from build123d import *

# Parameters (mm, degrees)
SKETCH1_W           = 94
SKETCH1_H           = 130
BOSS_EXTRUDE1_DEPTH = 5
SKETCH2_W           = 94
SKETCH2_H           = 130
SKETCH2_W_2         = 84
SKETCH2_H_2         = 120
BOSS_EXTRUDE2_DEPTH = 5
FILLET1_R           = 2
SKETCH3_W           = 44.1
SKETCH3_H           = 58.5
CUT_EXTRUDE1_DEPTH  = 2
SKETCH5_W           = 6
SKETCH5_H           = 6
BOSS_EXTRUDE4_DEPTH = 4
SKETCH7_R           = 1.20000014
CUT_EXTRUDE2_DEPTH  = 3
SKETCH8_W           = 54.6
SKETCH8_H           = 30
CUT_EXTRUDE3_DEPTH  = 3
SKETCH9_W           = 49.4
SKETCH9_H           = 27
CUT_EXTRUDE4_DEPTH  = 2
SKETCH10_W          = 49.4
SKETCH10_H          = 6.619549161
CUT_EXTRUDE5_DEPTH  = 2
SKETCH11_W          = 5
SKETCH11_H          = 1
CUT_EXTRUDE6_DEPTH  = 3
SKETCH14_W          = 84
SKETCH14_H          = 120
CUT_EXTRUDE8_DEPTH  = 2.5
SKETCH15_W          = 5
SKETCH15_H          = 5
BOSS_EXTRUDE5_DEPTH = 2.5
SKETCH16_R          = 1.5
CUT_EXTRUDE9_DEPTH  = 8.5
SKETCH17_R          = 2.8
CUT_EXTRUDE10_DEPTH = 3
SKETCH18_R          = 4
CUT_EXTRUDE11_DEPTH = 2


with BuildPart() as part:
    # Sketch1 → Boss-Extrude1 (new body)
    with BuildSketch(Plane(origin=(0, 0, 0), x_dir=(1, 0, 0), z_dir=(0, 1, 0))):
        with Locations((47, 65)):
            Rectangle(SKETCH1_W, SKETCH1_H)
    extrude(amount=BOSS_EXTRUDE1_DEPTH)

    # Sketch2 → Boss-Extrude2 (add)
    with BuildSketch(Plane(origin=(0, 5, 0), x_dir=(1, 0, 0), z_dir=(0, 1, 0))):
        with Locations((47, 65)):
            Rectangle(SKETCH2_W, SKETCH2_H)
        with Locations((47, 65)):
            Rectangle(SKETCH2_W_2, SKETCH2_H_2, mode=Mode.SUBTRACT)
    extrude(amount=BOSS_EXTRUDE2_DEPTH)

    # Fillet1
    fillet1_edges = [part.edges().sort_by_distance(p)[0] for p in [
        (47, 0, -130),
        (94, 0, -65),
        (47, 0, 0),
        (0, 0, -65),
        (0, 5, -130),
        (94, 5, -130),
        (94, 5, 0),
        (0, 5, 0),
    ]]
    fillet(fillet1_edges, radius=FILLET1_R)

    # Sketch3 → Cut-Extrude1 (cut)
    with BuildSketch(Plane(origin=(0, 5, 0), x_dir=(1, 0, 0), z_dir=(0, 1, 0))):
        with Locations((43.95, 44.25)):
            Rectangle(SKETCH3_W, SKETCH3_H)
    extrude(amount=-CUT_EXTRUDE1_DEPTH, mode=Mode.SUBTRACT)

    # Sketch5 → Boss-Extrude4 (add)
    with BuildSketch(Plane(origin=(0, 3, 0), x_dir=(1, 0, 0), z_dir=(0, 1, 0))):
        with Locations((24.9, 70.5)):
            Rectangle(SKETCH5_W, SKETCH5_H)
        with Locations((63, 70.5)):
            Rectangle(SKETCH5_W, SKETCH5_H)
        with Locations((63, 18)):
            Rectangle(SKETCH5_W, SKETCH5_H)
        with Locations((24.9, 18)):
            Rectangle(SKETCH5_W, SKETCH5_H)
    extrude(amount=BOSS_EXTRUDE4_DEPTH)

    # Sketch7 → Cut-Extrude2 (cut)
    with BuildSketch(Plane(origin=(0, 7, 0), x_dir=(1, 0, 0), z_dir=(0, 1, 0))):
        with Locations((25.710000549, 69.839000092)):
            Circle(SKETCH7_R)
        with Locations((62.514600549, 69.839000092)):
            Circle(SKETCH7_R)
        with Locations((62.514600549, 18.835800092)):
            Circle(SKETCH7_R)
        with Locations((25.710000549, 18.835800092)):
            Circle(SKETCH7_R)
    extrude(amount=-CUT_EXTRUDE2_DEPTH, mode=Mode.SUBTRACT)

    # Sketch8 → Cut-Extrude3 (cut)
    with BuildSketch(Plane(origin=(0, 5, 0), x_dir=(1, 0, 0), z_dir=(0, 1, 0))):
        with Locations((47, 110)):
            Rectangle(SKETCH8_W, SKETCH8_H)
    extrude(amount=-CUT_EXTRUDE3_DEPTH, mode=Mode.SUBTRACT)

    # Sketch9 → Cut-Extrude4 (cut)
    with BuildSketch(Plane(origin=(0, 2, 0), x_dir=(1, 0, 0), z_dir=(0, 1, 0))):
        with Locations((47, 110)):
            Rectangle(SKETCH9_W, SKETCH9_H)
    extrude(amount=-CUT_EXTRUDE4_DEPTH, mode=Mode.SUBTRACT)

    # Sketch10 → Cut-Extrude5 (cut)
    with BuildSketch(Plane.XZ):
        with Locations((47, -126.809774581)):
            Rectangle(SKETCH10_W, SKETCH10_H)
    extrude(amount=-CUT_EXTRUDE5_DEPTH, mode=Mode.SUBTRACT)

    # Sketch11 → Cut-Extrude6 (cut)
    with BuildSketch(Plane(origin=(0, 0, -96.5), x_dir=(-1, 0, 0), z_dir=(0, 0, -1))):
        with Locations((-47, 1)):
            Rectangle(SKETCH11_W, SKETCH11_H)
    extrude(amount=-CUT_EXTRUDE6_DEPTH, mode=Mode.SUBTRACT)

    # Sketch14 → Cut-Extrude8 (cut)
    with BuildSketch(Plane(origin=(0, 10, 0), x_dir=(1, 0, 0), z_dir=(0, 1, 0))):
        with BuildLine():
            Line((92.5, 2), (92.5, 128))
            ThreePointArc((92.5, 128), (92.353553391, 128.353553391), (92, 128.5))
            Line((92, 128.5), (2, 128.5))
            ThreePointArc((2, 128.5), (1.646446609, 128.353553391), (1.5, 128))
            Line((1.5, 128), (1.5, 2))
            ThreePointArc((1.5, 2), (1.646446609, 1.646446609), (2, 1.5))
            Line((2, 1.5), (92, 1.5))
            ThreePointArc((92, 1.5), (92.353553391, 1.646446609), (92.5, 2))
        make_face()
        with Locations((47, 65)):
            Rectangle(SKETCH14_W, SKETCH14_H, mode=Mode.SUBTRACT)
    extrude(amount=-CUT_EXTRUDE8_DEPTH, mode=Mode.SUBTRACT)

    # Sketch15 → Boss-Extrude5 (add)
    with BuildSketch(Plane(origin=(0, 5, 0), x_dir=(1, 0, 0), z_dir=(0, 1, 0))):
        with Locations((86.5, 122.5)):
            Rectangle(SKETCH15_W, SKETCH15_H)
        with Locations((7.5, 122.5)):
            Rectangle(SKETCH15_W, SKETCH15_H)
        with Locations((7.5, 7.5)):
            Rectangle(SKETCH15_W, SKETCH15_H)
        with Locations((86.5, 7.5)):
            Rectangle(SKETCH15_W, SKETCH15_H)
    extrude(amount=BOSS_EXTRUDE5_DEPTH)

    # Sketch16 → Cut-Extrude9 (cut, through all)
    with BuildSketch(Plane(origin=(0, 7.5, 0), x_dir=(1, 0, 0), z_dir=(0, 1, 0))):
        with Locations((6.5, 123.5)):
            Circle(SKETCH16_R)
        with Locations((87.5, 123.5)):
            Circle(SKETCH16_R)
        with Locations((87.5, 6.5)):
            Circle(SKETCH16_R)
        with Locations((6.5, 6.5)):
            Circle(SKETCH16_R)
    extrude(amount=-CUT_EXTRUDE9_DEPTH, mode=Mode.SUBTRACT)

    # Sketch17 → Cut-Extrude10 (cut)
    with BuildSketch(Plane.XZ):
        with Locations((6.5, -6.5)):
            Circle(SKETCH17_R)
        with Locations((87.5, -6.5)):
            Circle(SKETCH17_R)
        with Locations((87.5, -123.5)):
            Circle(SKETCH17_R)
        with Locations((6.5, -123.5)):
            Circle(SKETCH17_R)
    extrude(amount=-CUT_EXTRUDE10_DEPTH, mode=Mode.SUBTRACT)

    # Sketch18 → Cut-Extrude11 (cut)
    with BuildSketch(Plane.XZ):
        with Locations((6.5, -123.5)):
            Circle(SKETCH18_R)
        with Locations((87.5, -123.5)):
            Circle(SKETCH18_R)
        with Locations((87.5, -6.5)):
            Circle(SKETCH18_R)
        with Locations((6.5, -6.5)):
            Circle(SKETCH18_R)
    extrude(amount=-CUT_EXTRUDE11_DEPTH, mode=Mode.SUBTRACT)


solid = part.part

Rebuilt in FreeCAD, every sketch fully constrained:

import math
import FreeCAD as App
import Part
import Sketcher


def edges_at(feature, points):
    """Names of the edges that pass closest to the given points."""
    edges = feature.Shape.Edges
    near = lambda p: min(range(len(edges)), key=lambda i: edges[i].distToShape(Part.Vertex(*p))[0])
    return sorted({f"Edge{near(p) + 1}" for p in points})

doc = App.newDocument("Part")
body = doc.addObject("PartDesign::Body", "Body")

# Sketch on XZ plane
sketch1 = body.newObject("Sketcher::SketchObject", "Sketch")
sketch1.AttachmentSupport = (doc.getObject("XZ_Plane"), [""])
sketch1.MapMode = "FlatFace"
sketch1.addGeometry(Part.LineSegment(App.Vector(0, -130, 0), App.Vector(0, 0, 0)), False)
sketch1.addGeometry(Part.LineSegment(App.Vector(0, 0, 0), App.Vector(94, 0, 0)), False)
sketch1.addGeometry(Part.LineSegment(App.Vector(94, 0, 0), App.Vector(94, -130, 0)), False)
sketch1.addGeometry(Part.LineSegment(App.Vector(94, -130, 0), App.Vector(0, -130, 0)), False)
sketch1.addConstraint(Sketcher.Constraint("Coincident", 0, 2, 1, 1))
sketch1.addConstraint(Sketcher.Constraint("Coincident", 1, 2, 2, 1))
sketch1.addConstraint(Sketcher.Constraint("Coincident", 2, 2, 3, 1))
sketch1.addConstraint(Sketcher.Constraint("Coincident", 3, 2, 0, 1))
sketch1.addConstraint(Sketcher.Constraint("Vertical", 0))
sketch1.addConstraint(Sketcher.Constraint("Horizontal", 1))
sketch1.addConstraint(Sketcher.Constraint("Vertical", 2))
sketch1.addConstraint(Sketcher.Constraint("Horizontal", 3))
sketch1.addConstraint(Sketcher.Constraint("Coincident", 0, 2, -1, 1))
sketch1.addConstraint(Sketcher.Constraint("DistanceX", 1, 1, 1, 2, 94.0))
sketch1.addConstraint(Sketcher.Constraint("DistanceY", 0, 1, 0, 2, 130.0))
pad1 = body.newObject("PartDesign::Pad", "Pad")
pad1.Profile = sketch1
pad1.Length = 5
pad1.Reversed = True

# Sketch on XZ plane
sketch2 = body.newObject("Sketcher::SketchObject", "Sketch001")
sketch2.AttachmentSupport = (doc.getObject("XZ_Plane"), [""])
sketch2.MapMode = "FlatFace"
sketch2.AttachmentOffset = App.Placement(App.Vector(0, 0, -5), App.Rotation())
sketch2.addGeometry(Part.LineSegment(App.Vector(0, -130, 0), App.Vector(0, 0, 0)), False)
sketch2.addGeometry(Part.LineSegment(App.Vector(0, 0, 0), App.Vector(94, 0, 0)), False)
sketch2.addGeometry(Part.LineSegment(App.Vector(94, 0, 0), App.Vector(94, -130, 0)), False)
sketch2.addGeometry(Part.LineSegment(App.Vector(94, -130, 0), App.Vector(0, -130, 0)), False)
sketch2.addGeometry(Part.LineSegment(App.Vector(89, -5, 0), App.Vector(5, -5, 0)), False)
sketch2.addGeometry(Part.LineSegment(App.Vector(5, -5, 0), App.Vector(5, -125, 0)), False)
sketch2.addGeometry(Part.LineSegment(App.Vector(5, -125, 0), App.Vector(89, -125, 0)), False)
sketch2.addGeometry(Part.LineSegment(App.Vector(89, -125, 0), App.Vector(89, -5, 0)), False)
sketch2.addConstraint(Sketcher.Constraint("Coincident", 0, 2, 1, 1))
sketch2.addConstraint(Sketcher.Constraint("Coincident", 1, 2, 2, 1))
sketch2.addConstraint(Sketcher.Constraint("Coincident", 2, 2, 3, 1))
sketch2.addConstraint(Sketcher.Constraint("Coincident", 3, 2, 0, 1))
sketch2.addConstraint(Sketcher.Constraint("Coincident", 4, 2, 5, 1))
sketch2.addConstraint(Sketcher.Constraint("Coincident", 5, 2, 6, 1))
sketch2.addConstraint(Sketcher.Constraint("Coincident", 6, 2, 7, 1))
sketch2.addConstraint(Sketcher.Constraint("Coincident", 7, 2, 4, 1))
sketch2.addConstraint(Sketcher.Constraint("Vertical", 0))
sketch2.addConstraint(Sketcher.Constraint("Horizontal", 1))
sketch2.addConstraint(Sketcher.Constraint("Vertical", 2))
sketch2.addConstraint(Sketcher.Constraint("Horizontal", 3))
sketch2.addConstraint(Sketcher.Constraint("Horizontal", 4))
sketch2.addConstraint(Sketcher.Constraint("Vertical", 5))
sketch2.addConstraint(Sketcher.Constraint("Horizontal", 6))
sketch2.addConstraint(Sketcher.Constraint("Vertical", 7))
sketch2.addConstraint(Sketcher.Constraint("Coincident", 0, 2, -1, 1))
sketch2.addConstraint(Sketcher.Constraint("DistanceX", 1, 1, 1, 2, 94.0))
sketch2.addConstraint(Sketcher.Constraint("DistanceX", 4, 2, 4, 1, 84.0))
sketch2.addConstraint(Sketcher.Constraint("DistanceY", 0, 1, 0, 2, 130.0))
sketch2.addConstraint(Sketcher.Constraint("DistanceY", 5, 2, 5, 1, 120.0))
sketch2.addConstraint(Sketcher.Constraint("DistanceX", -1, 1, 4, 2, 5.0))
sketch2.addConstraint(Sketcher.Constraint("DistanceY", 4, 2, -1, 1, 5.0))
pad2 = body.newObject("PartDesign::Pad", "Pad001")
pad2.Profile = sketch2
pad2.Length = 5
pad2.Reversed = True
doc.recompute()

fillet = body.newObject("PartDesign::Fillet", "Fillet")
fillet.Base = (pad2, edges_at(pad2, [
    (47, 0, -130),
    (94, 0, -65),
    (47, 0, 0),
    (0, 0, -65),
    (0, 5, -130),
    (94, 5, -130),
    (94, 5, 0),
    (0, 5, 0),
]))
fillet.Radius = 2

# Sketch on XZ plane
sketch3 = body.newObject("Sketcher::SketchObject", "Sketch002")
sketch3.AttachmentSupport = (doc.getObject("XZ_Plane"), [""])
sketch3.MapMode = "FlatFace"
sketch3.AttachmentOffset = App.Placement(App.Vector(0, 0, -5), App.Rotation())
sketch3.addGeometry(Part.LineSegment(App.Vector(22, -74, 0), App.Vector(22, -15, 0)), False)
sketch3.addGeometry(Part.LineSegment(App.Vector(22, -15, 0), App.Vector(66, -15, 0)), False)
sketch3.addGeometry(Part.LineSegment(App.Vector(66, -15, 0), App.Vector(66, -74, 0)), False)
sketch3.addGeometry(Part.LineSegment(App.Vector(66, -74, 0), App.Vector(22, -74, 0)), False)
sketch3.addConstraint(Sketcher.Constraint("Coincident", 0, 2, 1, 1))
sketch3.addConstraint(Sketcher.Constraint("Coincident", 1, 2, 2, 1))
sketch3.addConstraint(Sketcher.Constraint("Coincident", 2, 2, 3, 1))
sketch3.addConstraint(Sketcher.Constraint("Coincident", 3, 2, 0, 1))
sketch3.addConstraint(Sketcher.Constraint("Vertical", 0))
sketch3.addConstraint(Sketcher.Constraint("Horizontal", 1))
sketch3.addConstraint(Sketcher.Constraint("Vertical", 2))
sketch3.addConstraint(Sketcher.Constraint("Horizontal", 3))
sketch3.addConstraint(Sketcher.Constraint("DistanceX", 1, 1, 1, 2, 44.1))
sketch3.addConstraint(Sketcher.Constraint("DistanceY", 0, 1, 0, 2, 58.5))
sketch3.addConstraint(Sketcher.Constraint("DistanceY", 0, 2, -1, 1, 15.0))
sketch3.addConstraint(Sketcher.Constraint("DistanceX", -1, 1, 1, 2, 66.0))
pocket1 = body.newObject("PartDesign::Pocket", "Pocket")
pocket1.Profile = sketch3
pocket1.Length = 2
pocket1.Reversed = True

# Sketch on XZ plane
sketch4 = body.newObject("Sketcher::SketchObject", "Sketch003")
sketch4.AttachmentSupport = (doc.getObject("XZ_Plane"), [""])
sketch4.MapMode = "FlatFace"
sketch4.AttachmentOffset = App.Placement(App.Vector(0, 0, -3), App.Rotation())
sketch4.addGeometry(Part.LineSegment(App.Vector(22, -74, 0), App.Vector(22, -68, 0)), False)
sketch4.addGeometry(Part.LineSegment(App.Vector(22, -68, 0), App.Vector(28, -68, 0)), False)
sketch4.addGeometry(Part.LineSegment(App.Vector(28, -68, 0), App.Vector(28, -74, 0)), False)
sketch4.addGeometry(Part.LineSegment(App.Vector(28, -74, 0), App.Vector(22, -74, 0)), False)
sketch4.addGeometry(Part.LineSegment(App.Vector(60, -74, 0), App.Vector(60, -68, 0)), False)
sketch4.addGeometry(Part.LineSegment(App.Vector(60, -68, 0), App.Vector(66, -68, 0)), False)
sketch4.addGeometry(Part.LineSegment(App.Vector(66, -68, 0), App.Vector(66, -74, 0)), False)
sketch4.addGeometry(Part.LineSegment(App.Vector(66, -74, 0), App.Vector(60, -74, 0)), False)
sketch4.addGeometry(Part.LineSegment(App.Vector(60, -21, 0), App.Vector(60, -15, 0)), False)
sketch4.addGeometry(Part.LineSegment(App.Vector(60, -15, 0), App.Vector(66, -15, 0)), False)
sketch4.addGeometry(Part.LineSegment(App.Vector(66, -15, 0), App.Vector(66, -21, 0)), False)
sketch4.addGeometry(Part.LineSegment(App.Vector(66, -21, 0), App.Vector(60, -21, 0)), False)
sketch4.addGeometry(Part.LineSegment(App.Vector(22, -21, 0), App.Vector(22, -15, 0)), False)
sketch4.addGeometry(Part.LineSegment(App.Vector(22, -15, 0), App.Vector(28, -15, 0)), False)
sketch4.addGeometry(Part.LineSegment(App.Vector(28, -15, 0), App.Vector(28, -21, 0)), False)
sketch4.addGeometry(Part.LineSegment(App.Vector(28, -21, 0), App.Vector(22, -21, 0)), False)
sketch4.addConstraint(Sketcher.Constraint("Coincident", 0, 2, 1, 1))
sketch4.addConstraint(Sketcher.Constraint("Coincident", 1, 2, 2, 1))
sketch4.addConstraint(Sketcher.Constraint("Coincident", 2, 2, 3, 1))
sketch4.addConstraint(Sketcher.Constraint("Coincident", 3, 2, 0, 1))
sketch4.addConstraint(Sketcher.Constraint("Coincident", 4, 2, 5, 1))
sketch4.addConstraint(Sketcher.Constraint("Coincident", 5, 2, 6, 1))
sketch4.addConstraint(Sketcher.Constraint("Coincident", 6, 2, 7, 1))
sketch4.addConstraint(Sketcher.Constraint("Coincident", 7, 2, 4, 1))
sketch4.addConstraint(Sketcher.Constraint("Coincident", 8, 2, 9, 1))
sketch4.addConstraint(Sketcher.Constraint("Coincident", 9, 2, 10, 1))
sketch4.addConstraint(Sketcher.Constraint("Coincident", 10, 2, 11, 1))
sketch4.addConstraint(Sketcher.Constraint("Coincident", 11, 2, 8, 1))
sketch4.addConstraint(Sketcher.Constraint("Coincident", 12, 2, 13, 1))
sketch4.addConstraint(Sketcher.Constraint("Coincident", 13, 2, 14, 1))
sketch4.addConstraint(Sketcher.Constraint("Coincident", 14, 2, 15, 1))
sketch4.addConstraint(Sketcher.Constraint("Coincident", 15, 2, 12, 1))
sketch4.addConstraint(Sketcher.Constraint("Vertical", 0))
sketch4.addConstraint(Sketcher.Constraint("Horizontal", 1))
sketch4.addConstraint(Sketcher.Constraint("Vertical", 2))
sketch4.addConstraint(Sketcher.Constraint("Horizontal", 3))
sketch4.addConstraint(Sketcher.Constraint("Vertical", 4))
sketch4.addConstraint(Sketcher.Constraint("Horizontal", 5))
sketch4.addConstraint(Sketcher.Constraint("Vertical", 6))
sketch4.addConstraint(Sketcher.Constraint("Horizontal", 7))
sketch4.addConstraint(Sketcher.Constraint("Vertical", 8))
sketch4.addConstraint(Sketcher.Constraint("Horizontal", 9))
sketch4.addConstraint(Sketcher.Constraint("Vertical", 10))
sketch4.addConstraint(Sketcher.Constraint("Horizontal", 11))
sketch4.addConstraint(Sketcher.Constraint("Vertical", 12))
sketch4.addConstraint(Sketcher.Constraint("Horizontal", 13))
sketch4.addConstraint(Sketcher.Constraint("Vertical", 14))
sketch4.addConstraint(Sketcher.Constraint("Horizontal", 15))
sketch4.addConstraint(Sketcher.Constraint("Horizontal", 1, 2, 4, 2))
sketch4.addConstraint(Sketcher.Constraint("Horizontal", 3, 2, 6, 2))
sketch4.addConstraint(Sketcher.Constraint("Horizontal", 9, 2, 12, 2))
sketch4.addConstraint(Sketcher.Constraint("Horizontal", 11, 2, 14, 2))
sketch4.addConstraint(Sketcher.Constraint("Vertical", 7, 2, 8, 2))
sketch4.addConstraint(Sketcher.Constraint("Vertical", 6, 2, 9, 2))
sketch4.addConstraint(Sketcher.Constraint("Vertical", 3, 2, 12, 2))
sketch4.addConstraint(Sketcher.Constraint("Vertical", 2, 2, 13, 2))
sketch4.addConstraint(Sketcher.Constraint("Equal", 3, 5))
sketch4.addConstraint(Sketcher.Constraint("Equal", 15, 0))
sketch4.addConstraint(Sketcher.Constraint("Equal", 6, 8))
sketch4.addConstraint(Sketcher.Constraint("DistanceX", 1, 1, 1, 2, 6.0))
sketch4.addConstraint(Sketcher.Constraint("DistanceX", -1, 1, 4, 2, 60.0))
sketch4.addConstraint(Sketcher.Constraint("DistanceY", 8, 2, -1, 1, 15.0))
sketch4.addConstraint(Sketcher.Constraint("DistanceX", -1, 1, 0, 2, 21.9))
sketch4.addConstraint(Sketcher.Constraint("DistanceY", 0, 2, -1, 1, 67.5))
pad3 = body.newObject("PartDesign::Pad", "Pad002")
pad3.Profile = sketch4
pad3.Length = 4
pad3.Reversed = True

# Sketch on XZ plane
sketch5 = body.newObject("Sketcher::SketchObject", "Sketch004")
sketch5.AttachmentSupport = (doc.getObject("XZ_Plane"), [""])
sketch5.MapMode = "FlatFace"
sketch5.AttachmentOffset = App.Placement(App.Vector(0, 0, -7), App.Rotation())
sketch5.addGeometry(Part.Circle(App.Vector(25.7, -69.8, 0), App.Vector(0, 0, 1), 1.2), False)
sketch5.addGeometry(Part.Circle(App.Vector(62.5, -69.8, 0), App.Vector(0, 0, 1), 1.2), False)
sketch5.addGeometry(Part.Circle(App.Vector(62.5, -18.8, 0), App.Vector(0, 0, 1), 1.2), False)
sketch5.addGeometry(Part.Circle(App.Vector(25.7, -18.8, 0), App.Vector(0, 0, 1), 1.2), False)
sketch5.addConstraint(Sketcher.Constraint("Equal", 0, 1))
sketch5.addConstraint(Sketcher.Constraint("Equal", 1, 2))
sketch5.addConstraint(Sketcher.Constraint("Equal", 2, 3))
sketch5.addConstraint(Sketcher.Constraint("Horizontal", 0, 3, 1, 3))
sketch5.addConstraint(Sketcher.Constraint("Horizontal", 2, 3, 3, 3))
sketch5.addConstraint(Sketcher.Constraint("Vertical", 1, 3, 2, 3))
sketch5.addConstraint(Sketcher.Constraint("Vertical", 0, 3, 3, 3))
sketch5.addConstraint(Sketcher.Constraint("Diameter", 0, 2.4))
sketch5.addConstraint(Sketcher.Constraint("DistanceX", -1, 1, 0, 3, 25.710001))
sketch5.addConstraint(Sketcher.Constraint("DistanceY", 0, 3, -1, 1, 69.839))
sketch5.addConstraint(Sketcher.Constraint("DistanceX", -1, 1, 1, 3, 62.514601))
sketch5.addConstraint(Sketcher.Constraint("DistanceY", 2, 3, -1, 1, 18.8358))
pocket2 = body.newObject("PartDesign::Pocket", "Pocket001")
pocket2.Profile = sketch5
pocket2.Length = 3
pocket2.Reversed = True

# Sketch on XZ plane
sketch6 = body.newObject("Sketcher::SketchObject", "Sketch005")
sketch6.AttachmentSupport = (doc.getObject("XZ_Plane"), [""])
sketch6.MapMode = "FlatFace"
sketch6.AttachmentOffset = App.Placement(App.Vector(0, 0, -5), App.Rotation())
sketch6.addGeometry(Part.LineSegment(App.Vector(20, -125, 0), App.Vector(20, -95, 0)), False)
sketch6.addGeometry(Part.LineSegment(App.Vector(20, -95, 0), App.Vector(74, -95, 0)), False)
sketch6.addGeometry(Part.LineSegment(App.Vector(74, -95, 0), App.Vector(74, -125, 0)), False)
sketch6.addGeometry(Part.LineSegment(App.Vector(74, -125, 0), App.Vector(20, -125, 0)), False)
sketch6.addConstraint(Sketcher.Constraint("Coincident", 0, 2, 1, 1))
sketch6.addConstraint(Sketcher.Constraint("Coincident", 1, 2, 2, 1))
sketch6.addConstraint(Sketcher.Constraint("Coincident", 2, 2, 3, 1))
sketch6.addConstraint(Sketcher.Constraint("Coincident", 3, 2, 0, 1))
sketch6.addConstraint(Sketcher.Constraint("Vertical", 0))
sketch6.addConstraint(Sketcher.Constraint("Horizontal", 1))
sketch6.addConstraint(Sketcher.Constraint("Vertical", 2))
sketch6.addConstraint(Sketcher.Constraint("Horizontal", 3))
sketch6.addConstraint(Sketcher.Constraint("DistanceY", 0, 1, 0, 2, 30.0))
sketch6.addConstraint(Sketcher.Constraint("DistanceX", 1, 1, 1, 2, 54.6))
sketch6.addConstraint(Sketcher.Constraint("DistanceY", 0, 2, -1, 1, 95.0))
sketch6.addConstraint(Sketcher.Constraint("DistanceX", -1, 1, 0, 2, 19.7))
pocket3 = body.newObject("PartDesign::Pocket", "Pocket002")
pocket3.Profile = sketch6
pocket3.Length = 3
pocket3.Reversed = True

# Sketch on XZ plane
sketch7 = body.newObject("Sketcher::SketchObject", "Sketch006")
sketch7.AttachmentSupport = (doc.getObject("XZ_Plane"), [""])
sketch7.MapMode = "FlatFace"
sketch7.AttachmentOffset = App.Placement(App.Vector(0, 0, -2), App.Rotation())
sketch7.addGeometry(Part.LineSegment(App.Vector(22, -124, 0), App.Vector(22, -96, 0)), False)
sketch7.addGeometry(Part.LineSegment(App.Vector(22, -96, 0), App.Vector(72, -96, 0)), False)
sketch7.addGeometry(Part.LineSegment(App.Vector(72, -96, 0), App.Vector(72, -124, 0)), False)
sketch7.addGeometry(Part.LineSegment(App.Vector(72, -124, 0), App.Vector(22, -124, 0)), False)
sketch7.addConstraint(Sketcher.Constraint("Coincident", 0, 2, 1, 1))
sketch7.addConstraint(Sketcher.Constraint("Coincident", 1, 2, 2, 1))
sketch7.addConstraint(Sketcher.Constraint("Coincident", 2, 2, 3, 1))
sketch7.addConstraint(Sketcher.Constraint("Coincident", 3, 2, 0, 1))
sketch7.addConstraint(Sketcher.Constraint("Vertical", 0))
sketch7.addConstraint(Sketcher.Constraint("Horizontal", 1))
sketch7.addConstraint(Sketcher.Constraint("Vertical", 2))
sketch7.addConstraint(Sketcher.Constraint("Horizontal", 3))
sketch7.addConstraint(Sketcher.Constraint("DistanceY", 0, 1, 0, 2, 27.0))
sketch7.addConstraint(Sketcher.Constraint("DistanceX", 1, 1, 1, 2, 49.4))
sketch7.addConstraint(Sketcher.Constraint("DistanceX", -1, 1, 0, 2, 22.3))
sketch7.addConstraint(Sketcher.Constraint("DistanceY", 0, 2, -1, 1, 96.5))
pocket4 = body.newObject("PartDesign::Pocket", "Pocket003")
pocket4.Profile = sketch7
pocket4.Length = 2
pocket4.Reversed = True

# Sketch on XZ plane
sketch8 = body.newObject("Sketcher::SketchObject", "Sketch007")
sketch8.AttachmentSupport = (doc.getObject("XZ_Plane"), [""])
sketch8.MapMode = "FlatFace"
sketch8.addGeometry(Part.LineSegment(App.Vector(22, -124, 0), App.Vector(22, -130, 0)), False)
sketch8.addGeometry(Part.LineSegment(App.Vector(22, -130, 0), App.Vector(72, -130, 0)), False)
sketch8.addGeometry(Part.LineSegment(App.Vector(72, -130, 0), App.Vector(72, -124, 0)), False)
sketch8.addGeometry(Part.LineSegment(App.Vector(72, -124, 0), App.Vector(22, -124, 0)), False)
sketch8.addConstraint(Sketcher.Constraint("Coincident", 0, 2, 1, 1))
sketch8.addConstraint(Sketcher.Constraint("Coincident", 1, 2, 2, 1))
sketch8.addConstraint(Sketcher.Constraint("Coincident", 2, 2, 3, 1))
sketch8.addConstraint(Sketcher.Constraint("Coincident", 3, 2, 0, 1))
sketch8.addConstraint(Sketcher.Constraint("Vertical", 0))
sketch8.addConstraint(Sketcher.Constraint("Horizontal", 1))
sketch8.addConstraint(Sketcher.Constraint("Vertical", 2))
sketch8.addConstraint(Sketcher.Constraint("Horizontal", 3))
sketch8.addConstraint(Sketcher.Constraint("DistanceX", 1, 1, 1, 2, 49.4))
sketch8.addConstraint(Sketcher.Constraint("DistanceX", -1, 1, 0, 2, 22.3))
sketch8.addConstraint(Sketcher.Constraint("DistanceY", 2, 2, -1, 1, 123.5))
sketch8.addConstraint(Sketcher.Constraint("DistanceY", 0, 2, 0, 1, 6.619549))
pocket5 = body.newObject("PartDesign::Pocket", "Pocket004")
pocket5.Profile = sketch8
pocket5.Length = 2

# Sketch on XY plane
sketch9 = body.newObject("Sketcher::SketchObject", "Sketch008")
sketch9.AttachmentSupport = (doc.getObject("XY_Plane"), [""])
sketch9.MapMode = "FlatFace"
sketch9.AttachmentOffset = App.Placement(App.Vector(0, 0, -96.5), App.Rotation())
sketch9.addGeometry(Part.LineSegment(App.Vector(49.5, 1.5, 0), App.Vector(49.5, 0.5, 0)), False)
sketch9.addGeometry(Part.LineSegment(App.Vector(49.5, 0.5, 0), App.Vector(44.5, 0.5, 0)), False)
sketch9.addGeometry(Part.LineSegment(App.Vector(44.5, 0.5, 0), App.Vector(44.5, 1.5, 0)), False)
sketch9.addGeometry(Part.LineSegment(App.Vector(44.5, 1.5, 0), App.Vector(49.5, 1.5, 0)), False)
sketch9.addConstraint(Sketcher.Constraint("Coincident", 0, 2, 1, 1))
sketch9.addConstraint(Sketcher.Constraint("Coincident", 1, 2, 2, 1))
sketch9.addConstraint(Sketcher.Constraint("Coincident", 2, 2, 3, 1))
sketch9.addConstraint(Sketcher.Constraint("Coincident", 3, 2, 0, 1))
sketch9.addConstraint(Sketcher.Constraint("Vertical", 0))
sketch9.addConstraint(Sketcher.Constraint("Horizontal", 1))
sketch9.addConstraint(Sketcher.Constraint("Vertical", 2))
sketch9.addConstraint(Sketcher.Constraint("Horizontal", 3))
sketch9.addConstraint(Sketcher.Constraint("DistanceX", 1, 2, 1, 1, 5.0))
sketch9.addConstraint(Sketcher.Constraint("DistanceY", 0, 2, 0, 1, 1.0))
sketch9.addConstraint(Sketcher.Constraint("DistanceX", -1, 1, 0, 2, 49.5))
sketch9.addConstraint(Sketcher.Constraint("DistanceY", -1, 1, 0, 2, 0.5))
pocket6 = body.newObject("PartDesign::Pocket", "Pocket005")
pocket6.Profile = sketch9
pocket6.Length = 3
pocket6.Reversed = True

# Sketch on XZ plane
sketch10 = body.newObject("Sketcher::SketchObject", "Sketch009")
sketch10.AttachmentSupport = (doc.getObject("XZ_Plane"), [""])
sketch10.MapMode = "FlatFace"
sketch10.AttachmentOffset = App.Placement(App.Vector(0, 0, -10), App.Rotation())
sketch10.addGeometry(Part.LineSegment(App.Vector(92.5, -2, 0), App.Vector(92.5, -128, 0)), False)
sketch10.addGeometry(Part.ArcOfCircle(Part.Circle(App.Vector(92, -128, 0), App.Vector(0, 0, 1), 0.5), math.radians(-90), math.radians(0)), False)
sketch10.addGeometry(Part.LineSegment(App.Vector(92, -128.5, 0), App.Vector(2, -128.5, 0)), False)
sketch10.addGeometry(Part.ArcOfCircle(Part.Circle(App.Vector(2, -128, 0), App.Vector(0, 0, 1), 0.5), math.radians(180), math.radians(270)), False)
sketch10.addGeometry(Part.LineSegment(App.Vector(1.5, -128, 0), App.Vector(1.5, -2, 0)), False)
sketch10.addGeometry(Part.ArcOfCircle(Part.Circle(App.Vector(2, -2, 0), App.Vector(0, 0, 1), 0.5), math.radians(90), math.radians(180)), False)
sketch10.addGeometry(Part.LineSegment(App.Vector(2, -1.5, 0), App.Vector(92, -1.5, 0)), False)
sketch10.addGeometry(Part.ArcOfCircle(Part.Circle(App.Vector(92, -2, 0), App.Vector(0, 0, 1), 0.5), math.radians(0), math.radians(90)), False)
sketch10.addGeometry(Part.LineSegment(App.Vector(89, -5, 0), App.Vector(5, -5, 0)), False)
sketch10.addGeometry(Part.LineSegment(App.Vector(5, -5, 0), App.Vector(5, -125, 0)), False)
sketch10.addGeometry(Part.LineSegment(App.Vector(5, -125, 0), App.Vector(89, -125, 0)), False)
sketch10.addGeometry(Part.LineSegment(App.Vector(89, -125, 0), App.Vector(89, -5, 0)), False)
sketch10.addConstraint(Sketcher.Constraint("Tangent", 0, 2, 1, 2))
sketch10.addConstraint(Sketcher.Constraint("Tangent", 1, 1, 2, 1))
sketch10.addConstraint(Sketcher.Constraint("Tangent", 2, 2, 3, 2))
sketch10.addConstraint(Sketcher.Constraint("Tangent", 3, 1, 4, 1))
sketch10.addConstraint(Sketcher.Constraint("Tangent", 4, 2, 5, 2))
sketch10.addConstraint(Sketcher.Constraint("Tangent", 5, 1, 6, 1))
sketch10.addConstraint(Sketcher.Constraint("Tangent", 6, 2, 7, 2))
sketch10.addConstraint(Sketcher.Constraint("Tangent", 7, 1, 0, 1))
sketch10.addConstraint(Sketcher.Constraint("Coincident", 8, 2, 9, 1))
sketch10.addConstraint(Sketcher.Constraint("Coincident", 9, 2, 10, 1))
sketch10.addConstraint(Sketcher.Constraint("Coincident", 10, 2, 11, 1))
sketch10.addConstraint(Sketcher.Constraint("Coincident", 11, 2, 8, 1))
sketch10.addConstraint(Sketcher.Constraint("Vertical", 0))
sketch10.addConstraint(Sketcher.Constraint("Horizontal", 2))
sketch10.addConstraint(Sketcher.Constraint("Vertical", 4))
sketch10.addConstraint(Sketcher.Constraint("Horizontal", 6))
sketch10.addConstraint(Sketcher.Constraint("Horizontal", 8))
sketch10.addConstraint(Sketcher.Constraint("Vertical", 9))
sketch10.addConstraint(Sketcher.Constraint("Horizontal", 10))
sketch10.addConstraint(Sketcher.Constraint("Vertical", 11))
sketch10.addConstraint(Sketcher.Constraint("Equal", 1, 3))
sketch10.addConstraint(Sketcher.Constraint("Equal", 3, 5))
sketch10.addConstraint(Sketcher.Constraint("Equal", 5, 7))
sketch10.addConstraint(Sketcher.Constraint("Radius", 1, 0.5))
sketch10.addConstraint(Sketcher.Constraint("DistanceX", 2, 2, 2, 1, 90.0))
sketch10.addConstraint(Sketcher.Constraint("DistanceX", 8, 2, 8, 1, 84.0))
sketch10.addConstraint(Sketcher.Constraint("DistanceY", 0, 2, 0, 1, 126.0))
sketch10.addConstraint(Sketcher.Constraint("DistanceY", 9, 2, 9, 1, 120.0))
sketch10.addConstraint(Sketcher.Constraint("DistanceX", -1, 1, 1, 3, 92.0))
sketch10.addConstraint(Sketcher.Constraint("DistanceY", 1, 3, -1, 1, 128.0))
sketch10.addConstraint(Sketcher.Constraint("DistanceX", -1, 1, 8, 2, 5.0))
sketch10.addConstraint(Sketcher.Constraint("DistanceY", 8, 2, -1, 1, 5.0))
pocket7 = body.newObject("PartDesign::Pocket", "Pocket006")
pocket7.Profile = sketch10
pocket7.Length = 2.5
pocket7.Reversed = True

# Sketch on XZ plane
sketch11 = body.newObject("Sketcher::SketchObject", "Sketch010")
sketch11.AttachmentSupport = (doc.getObject("XZ_Plane"), [""])
sketch11.MapMode = "FlatFace"
sketch11.AttachmentOffset = App.Placement(App.Vector(0, 0, -5), App.Rotation())
sketch11.addGeometry(Part.LineSegment(App.Vector(84, -125, 0), App.Vector(84, -120, 0)), False)
sketch11.addGeometry(Part.LineSegment(App.Vector(84, -120, 0), App.Vector(89, -120, 0)), False)
sketch11.addGeometry(Part.LineSegment(App.Vector(89, -120, 0), App.Vector(89, -125, 0)), False)
sketch11.addGeometry(Part.LineSegment(App.Vector(89, -125, 0), App.Vector(84, -125, 0)), False)
sketch11.addGeometry(Part.LineSegment(App.Vector(5, -125, 0), App.Vector(5, -120, 0)), False)
sketch11.addGeometry(Part.LineSegment(App.Vector(5, -120, 0), App.Vector(10, -120, 0)), False)
sketch11.addGeometry(Part.LineSegment(App.Vector(10, -120, 0), App.Vector(10, -125, 0)), False)
sketch11.addGeometry(Part.LineSegment(App.Vector(10, -125, 0), App.Vector(5, -125, 0)), False)
sketch11.addGeometry(Part.LineSegment(App.Vector(5, -10, 0), App.Vector(5, -5, 0)), False)
sketch11.addGeometry(Part.LineSegment(App.Vector(5, -5, 0), App.Vector(10, -5, 0)), False)
sketch11.addGeometry(Part.LineSegment(App.Vector(10, -5, 0), App.Vector(10, -10, 0)), False)
sketch11.addGeometry(Part.LineSegment(App.Vector(10, -10, 0), App.Vector(5, -10, 0)), False)
sketch11.addGeometry(Part.LineSegment(App.Vector(84, -10, 0), App.Vector(84, -5, 0)), False)
sketch11.addGeometry(Part.LineSegment(App.Vector(84, -5, 0), App.Vector(89, -5, 0)), False)
sketch11.addGeometry(Part.LineSegment(App.Vector(89, -5, 0), App.Vector(89, -10, 0)), False)
sketch11.addGeometry(Part.LineSegment(App.Vector(89, -10, 0), App.Vector(84, -10, 0)), False)
sketch11.addConstraint(Sketcher.Constraint("Coincident", 0, 2, 1, 1))
sketch11.addConstraint(Sketcher.Constraint("Coincident", 1, 2, 2, 1))
sketch11.addConstraint(Sketcher.Constraint("Coincident", 2, 2, 3, 1))
sketch11.addConstraint(Sketcher.Constraint("Coincident", 3, 2, 0, 1))
sketch11.addConstraint(Sketcher.Constraint("Coincident", 4, 2, 5, 1))
sketch11.addConstraint(Sketcher.Constraint("Coincident", 5, 2, 6, 1))
sketch11.addConstraint(Sketcher.Constraint("Coincident", 6, 2, 7, 1))
sketch11.addConstraint(Sketcher.Constraint("Coincident", 7, 2, 4, 1))
sketch11.addConstraint(Sketcher.Constraint("Coincident", 8, 2, 9, 1))
sketch11.addConstraint(Sketcher.Constraint("Coincident", 9, 2, 10, 1))
sketch11.addConstraint(Sketcher.Constraint("Coincident", 10, 2, 11, 1))
sketch11.addConstraint(Sketcher.Constraint("Coincident", 11, 2, 8, 1))
sketch11.addConstraint(Sketcher.Constraint("Coincident", 12, 2, 13, 1))
sketch11.addConstraint(Sketcher.Constraint("Coincident", 13, 2, 14, 1))
sketch11.addConstraint(Sketcher.Constraint("Coincident", 14, 2, 15, 1))
sketch11.addConstraint(Sketcher.Constraint("Coincident", 15, 2, 12, 1))
sketch11.addConstraint(Sketcher.Constraint("Vertical", 0))
sketch11.addConstraint(Sketcher.Constraint("Horizontal", 1))
sketch11.addConstraint(Sketcher.Constraint("Vertical", 2))
sketch11.addConstraint(Sketcher.Constraint("Horizontal", 3))
sketch11.addConstraint(Sketcher.Constraint("Vertical", 4))
sketch11.addConstraint(Sketcher.Constraint("Horizontal", 5))
sketch11.addConstraint(Sketcher.Constraint("Vertical", 6))
sketch11.addConstraint(Sketcher.Constraint("Horizontal", 7))
sketch11.addConstraint(Sketcher.Constraint("Vertical", 8))
sketch11.addConstraint(Sketcher.Constraint("Horizontal", 9))
sketch11.addConstraint(Sketcher.Constraint("Vertical", 10))
sketch11.addConstraint(Sketcher.Constraint("Horizontal", 11))
sketch11.addConstraint(Sketcher.Constraint("Vertical", 12))
sketch11.addConstraint(Sketcher.Constraint("Horizontal", 13))
sketch11.addConstraint(Sketcher.Constraint("Vertical", 14))
sketch11.addConstraint(Sketcher.Constraint("Horizontal", 15))
sketch11.addConstraint(Sketcher.Constraint("Horizontal", 1, 2, 4, 2))
sketch11.addConstraint(Sketcher.Constraint("Horizontal", 3, 2, 6, 2))
sketch11.addConstraint(Sketcher.Constraint("Horizontal", 9, 2, 12, 2))
sketch11.addConstraint(Sketcher.Constraint("Horizontal", 11, 2, 14, 2))
sketch11.addConstraint(Sketcher.Constraint("Vertical", 7, 2, 8, 2))
sketch11.addConstraint(Sketcher.Constraint("Vertical", 6, 2, 9, 2))
sketch11.addConstraint(Sketcher.Constraint("Vertical", 3, 2, 12, 2))
sketch11.addConstraint(Sketcher.Constraint("Vertical", 2, 2, 13, 2))
sketch11.addConstraint(Sketcher.Constraint("Equal", 3, 5))
sketch11.addConstraint(Sketcher.Constraint("Equal", 15, 0))
sketch11.addConstraint(Sketcher.Constraint("Equal", 6, 8))
sketch11.addConstraint(Sketcher.Constraint("DistanceX", 1, 1, 1, 2, 5.0))
sketch11.addConstraint(Sketcher.Constraint("DistanceX", -1, 1, 0, 2, 84.0))
sketch11.addConstraint(Sketcher.Constraint("DistanceY", 0, 2, -1, 1, 120.0))
sketch11.addConstraint(Sketcher.Constraint("DistanceX", -1, 1, 4, 2, 5.0))
sketch11.addConstraint(Sketcher.Constraint("DistanceY", 8, 2, -1, 1, 5.0))
pad4 = body.newObject("PartDesign::Pad", "Pad003")
pad4.Profile = sketch11
pad4.Length = 2.5
pad4.Reversed = True

# Sketch on XZ plane
sketch12 = body.newObject("Sketcher::SketchObject", "Sketch011")
sketch12.AttachmentSupport = (doc.getObject("XZ_Plane"), [""])
sketch12.MapMode = "FlatFace"
sketch12.AttachmentOffset = App.Placement(App.Vector(0, 0, -7.5), App.Rotation())
sketch12.addGeometry(Part.Circle(App.Vector(6.5, -123.5, 0), App.Vector(0, 0, 1), 1.5), False)
sketch12.addGeometry(Part.Circle(App.Vector(87.5, -123.5, 0), App.Vector(0, 0, 1), 1.5), False)
sketch12.addGeometry(Part.Circle(App.Vector(87.5, -6.5, 0), App.Vector(0, 0, 1), 1.5), False)
sketch12.addGeometry(Part.Circle(App.Vector(6.5, -6.5, 0), App.Vector(0, 0, 1), 1.5), False)
sketch12.addConstraint(Sketcher.Constraint("Equal", 0, 1))
sketch12.addConstraint(Sketcher.Constraint("Equal", 1, 2))
sketch12.addConstraint(Sketcher.Constraint("Equal", 2, 3))
sketch12.addConstraint(Sketcher.Constraint("Horizontal", 0, 3, 1, 3))
sketch12.addConstraint(Sketcher.Constraint("Horizontal", 2, 3, 3, 3))
sketch12.addConstraint(Sketcher.Constraint("Vertical", 1, 3, 2, 3))
sketch12.addConstraint(Sketcher.Constraint("Vertical", 0, 3, 3, 3))
sketch12.addConstraint(Sketcher.Constraint("Diameter", 0, 3.0))
sketch12.addConstraint(Sketcher.Constraint("DistanceX", 0, 3, 1, 3, 81.0))
sketch12.addConstraint(Sketcher.Constraint("DistanceY", 1, 3, 2, 3, 117.0))
sketch12.addConstraint(Sketcher.Constraint("DistanceX", -1, 1, 0, 3, 6.5))
sketch12.addConstraint(Sketcher.Constraint("DistanceY", 0, 3, -1, 1, 123.5))
pocket8 = body.newObject("PartDesign::Pocket", "Pocket007")
pocket8.Profile = sketch12
pocket8.Type = "ThroughAll"
pocket8.Reversed = True

# Sketch on XZ plane
sketch13 = body.newObject("Sketcher::SketchObject", "Sketch012")
sketch13.AttachmentSupport = (doc.getObject("XZ_Plane"), [""])
sketch13.MapMode = "FlatFace"
sketch13.addGeometry(Part.Circle(App.Vector(6.5, -6.5, 0), App.Vector(0, 0, 1), 2.8), False)
sketch13.addGeometry(Part.Circle(App.Vector(87.5, -6.5, 0), App.Vector(0, 0, 1), 2.8), False)
sketch13.addGeometry(Part.Circle(App.Vector(87.5, -123.5, 0), App.Vector(0, 0, 1), 2.8), False)
sketch13.addGeometry(Part.Circle(App.Vector(6.5, -123.5, 0), App.Vector(0, 0, 1), 2.8), False)
sketch13.addConstraint(Sketcher.Constraint("Equal", 0, 1))
sketch13.addConstraint(Sketcher.Constraint("Equal", 1, 2))
sketch13.addConstraint(Sketcher.Constraint("Equal", 2, 3))
sketch13.addConstraint(Sketcher.Constraint("Horizontal", 0, 3, 1, 3))
sketch13.addConstraint(Sketcher.Constraint("Horizontal", 2, 3, 3, 3))
sketch13.addConstraint(Sketcher.Constraint("Vertical", 1, 3, 2, 3))
sketch13.addConstraint(Sketcher.Constraint("Vertical", 0, 3, 3, 3))
sketch13.addConstraint(Sketcher.Constraint("Diameter", 0, 5.6))
sketch13.addConstraint(Sketcher.Constraint("DistanceX", 0, 3, 1, 3, 81.0))
sketch13.addConstraint(Sketcher.Constraint("DistanceY", 2, 3, 1, 3, 117.0))
sketch13.addConstraint(Sketcher.Constraint("DistanceX", -1, 1, 0, 3, 6.5))
sketch13.addConstraint(Sketcher.Constraint("DistanceY", 0, 3, -1, 1, 6.5))
pocket9 = body.newObject("PartDesign::Pocket", "Pocket008")
pocket9.Profile = sketch13
pocket9.Length = 3

# Sketch on XZ plane
sketch14 = body.newObject("Sketcher::SketchObject", "Sketch013")
sketch14.AttachmentSupport = (doc.getObject("XZ_Plane"), [""])
sketch14.MapMode = "FlatFace"
sketch14.addGeometry(Part.Circle(App.Vector(6.5, -123.5, 0), App.Vector(0, 0, 1), 4), False)
sketch14.addGeometry(Part.Circle(App.Vector(87.5, -123.5, 0), App.Vector(0, 0, 1), 4), False)
sketch14.addGeometry(Part.Circle(App.Vector(87.5, -6.5, 0), App.Vector(0, 0, 1), 4), False)
sketch14.addGeometry(Part.Circle(App.Vector(6.5, -6.5, 0), App.Vector(0, 0, 1), 4), False)
sketch14.addConstraint(Sketcher.Constraint("Equal", 0, 1))
sketch14.addConstraint(Sketcher.Constraint("Equal", 1, 2))
sketch14.addConstraint(Sketcher.Constraint("Equal", 2, 3))
sketch14.addConstraint(Sketcher.Constraint("Horizontal", 0, 3, 1, 3))
sketch14.addConstraint(Sketcher.Constraint("Horizontal", 2, 3, 3, 3))
sketch14.addConstraint(Sketcher.Constraint("Vertical", 1, 3, 2, 3))
sketch14.addConstraint(Sketcher.Constraint("Vertical", 0, 3, 3, 3))
sketch14.addConstraint(Sketcher.Constraint("Diameter", 0, 8.0))
sketch14.addConstraint(Sketcher.Constraint("DistanceX", 0, 3, 1, 3, 81.0))
sketch14.addConstraint(Sketcher.Constraint("DistanceY", 1, 3, 2, 3, 117.0))
sketch14.addConstraint(Sketcher.Constraint("DistanceX", -1, 1, 0, 3, 6.5))
sketch14.addConstraint(Sketcher.Constraint("DistanceY", 0, 3, -1, 1, 123.5))
pocket10 = body.newObject("PartDesign::Pocket", "Pocket009")
pocket10.Profile = sketch14
pocket10.Length = 2

doc.recompute()
